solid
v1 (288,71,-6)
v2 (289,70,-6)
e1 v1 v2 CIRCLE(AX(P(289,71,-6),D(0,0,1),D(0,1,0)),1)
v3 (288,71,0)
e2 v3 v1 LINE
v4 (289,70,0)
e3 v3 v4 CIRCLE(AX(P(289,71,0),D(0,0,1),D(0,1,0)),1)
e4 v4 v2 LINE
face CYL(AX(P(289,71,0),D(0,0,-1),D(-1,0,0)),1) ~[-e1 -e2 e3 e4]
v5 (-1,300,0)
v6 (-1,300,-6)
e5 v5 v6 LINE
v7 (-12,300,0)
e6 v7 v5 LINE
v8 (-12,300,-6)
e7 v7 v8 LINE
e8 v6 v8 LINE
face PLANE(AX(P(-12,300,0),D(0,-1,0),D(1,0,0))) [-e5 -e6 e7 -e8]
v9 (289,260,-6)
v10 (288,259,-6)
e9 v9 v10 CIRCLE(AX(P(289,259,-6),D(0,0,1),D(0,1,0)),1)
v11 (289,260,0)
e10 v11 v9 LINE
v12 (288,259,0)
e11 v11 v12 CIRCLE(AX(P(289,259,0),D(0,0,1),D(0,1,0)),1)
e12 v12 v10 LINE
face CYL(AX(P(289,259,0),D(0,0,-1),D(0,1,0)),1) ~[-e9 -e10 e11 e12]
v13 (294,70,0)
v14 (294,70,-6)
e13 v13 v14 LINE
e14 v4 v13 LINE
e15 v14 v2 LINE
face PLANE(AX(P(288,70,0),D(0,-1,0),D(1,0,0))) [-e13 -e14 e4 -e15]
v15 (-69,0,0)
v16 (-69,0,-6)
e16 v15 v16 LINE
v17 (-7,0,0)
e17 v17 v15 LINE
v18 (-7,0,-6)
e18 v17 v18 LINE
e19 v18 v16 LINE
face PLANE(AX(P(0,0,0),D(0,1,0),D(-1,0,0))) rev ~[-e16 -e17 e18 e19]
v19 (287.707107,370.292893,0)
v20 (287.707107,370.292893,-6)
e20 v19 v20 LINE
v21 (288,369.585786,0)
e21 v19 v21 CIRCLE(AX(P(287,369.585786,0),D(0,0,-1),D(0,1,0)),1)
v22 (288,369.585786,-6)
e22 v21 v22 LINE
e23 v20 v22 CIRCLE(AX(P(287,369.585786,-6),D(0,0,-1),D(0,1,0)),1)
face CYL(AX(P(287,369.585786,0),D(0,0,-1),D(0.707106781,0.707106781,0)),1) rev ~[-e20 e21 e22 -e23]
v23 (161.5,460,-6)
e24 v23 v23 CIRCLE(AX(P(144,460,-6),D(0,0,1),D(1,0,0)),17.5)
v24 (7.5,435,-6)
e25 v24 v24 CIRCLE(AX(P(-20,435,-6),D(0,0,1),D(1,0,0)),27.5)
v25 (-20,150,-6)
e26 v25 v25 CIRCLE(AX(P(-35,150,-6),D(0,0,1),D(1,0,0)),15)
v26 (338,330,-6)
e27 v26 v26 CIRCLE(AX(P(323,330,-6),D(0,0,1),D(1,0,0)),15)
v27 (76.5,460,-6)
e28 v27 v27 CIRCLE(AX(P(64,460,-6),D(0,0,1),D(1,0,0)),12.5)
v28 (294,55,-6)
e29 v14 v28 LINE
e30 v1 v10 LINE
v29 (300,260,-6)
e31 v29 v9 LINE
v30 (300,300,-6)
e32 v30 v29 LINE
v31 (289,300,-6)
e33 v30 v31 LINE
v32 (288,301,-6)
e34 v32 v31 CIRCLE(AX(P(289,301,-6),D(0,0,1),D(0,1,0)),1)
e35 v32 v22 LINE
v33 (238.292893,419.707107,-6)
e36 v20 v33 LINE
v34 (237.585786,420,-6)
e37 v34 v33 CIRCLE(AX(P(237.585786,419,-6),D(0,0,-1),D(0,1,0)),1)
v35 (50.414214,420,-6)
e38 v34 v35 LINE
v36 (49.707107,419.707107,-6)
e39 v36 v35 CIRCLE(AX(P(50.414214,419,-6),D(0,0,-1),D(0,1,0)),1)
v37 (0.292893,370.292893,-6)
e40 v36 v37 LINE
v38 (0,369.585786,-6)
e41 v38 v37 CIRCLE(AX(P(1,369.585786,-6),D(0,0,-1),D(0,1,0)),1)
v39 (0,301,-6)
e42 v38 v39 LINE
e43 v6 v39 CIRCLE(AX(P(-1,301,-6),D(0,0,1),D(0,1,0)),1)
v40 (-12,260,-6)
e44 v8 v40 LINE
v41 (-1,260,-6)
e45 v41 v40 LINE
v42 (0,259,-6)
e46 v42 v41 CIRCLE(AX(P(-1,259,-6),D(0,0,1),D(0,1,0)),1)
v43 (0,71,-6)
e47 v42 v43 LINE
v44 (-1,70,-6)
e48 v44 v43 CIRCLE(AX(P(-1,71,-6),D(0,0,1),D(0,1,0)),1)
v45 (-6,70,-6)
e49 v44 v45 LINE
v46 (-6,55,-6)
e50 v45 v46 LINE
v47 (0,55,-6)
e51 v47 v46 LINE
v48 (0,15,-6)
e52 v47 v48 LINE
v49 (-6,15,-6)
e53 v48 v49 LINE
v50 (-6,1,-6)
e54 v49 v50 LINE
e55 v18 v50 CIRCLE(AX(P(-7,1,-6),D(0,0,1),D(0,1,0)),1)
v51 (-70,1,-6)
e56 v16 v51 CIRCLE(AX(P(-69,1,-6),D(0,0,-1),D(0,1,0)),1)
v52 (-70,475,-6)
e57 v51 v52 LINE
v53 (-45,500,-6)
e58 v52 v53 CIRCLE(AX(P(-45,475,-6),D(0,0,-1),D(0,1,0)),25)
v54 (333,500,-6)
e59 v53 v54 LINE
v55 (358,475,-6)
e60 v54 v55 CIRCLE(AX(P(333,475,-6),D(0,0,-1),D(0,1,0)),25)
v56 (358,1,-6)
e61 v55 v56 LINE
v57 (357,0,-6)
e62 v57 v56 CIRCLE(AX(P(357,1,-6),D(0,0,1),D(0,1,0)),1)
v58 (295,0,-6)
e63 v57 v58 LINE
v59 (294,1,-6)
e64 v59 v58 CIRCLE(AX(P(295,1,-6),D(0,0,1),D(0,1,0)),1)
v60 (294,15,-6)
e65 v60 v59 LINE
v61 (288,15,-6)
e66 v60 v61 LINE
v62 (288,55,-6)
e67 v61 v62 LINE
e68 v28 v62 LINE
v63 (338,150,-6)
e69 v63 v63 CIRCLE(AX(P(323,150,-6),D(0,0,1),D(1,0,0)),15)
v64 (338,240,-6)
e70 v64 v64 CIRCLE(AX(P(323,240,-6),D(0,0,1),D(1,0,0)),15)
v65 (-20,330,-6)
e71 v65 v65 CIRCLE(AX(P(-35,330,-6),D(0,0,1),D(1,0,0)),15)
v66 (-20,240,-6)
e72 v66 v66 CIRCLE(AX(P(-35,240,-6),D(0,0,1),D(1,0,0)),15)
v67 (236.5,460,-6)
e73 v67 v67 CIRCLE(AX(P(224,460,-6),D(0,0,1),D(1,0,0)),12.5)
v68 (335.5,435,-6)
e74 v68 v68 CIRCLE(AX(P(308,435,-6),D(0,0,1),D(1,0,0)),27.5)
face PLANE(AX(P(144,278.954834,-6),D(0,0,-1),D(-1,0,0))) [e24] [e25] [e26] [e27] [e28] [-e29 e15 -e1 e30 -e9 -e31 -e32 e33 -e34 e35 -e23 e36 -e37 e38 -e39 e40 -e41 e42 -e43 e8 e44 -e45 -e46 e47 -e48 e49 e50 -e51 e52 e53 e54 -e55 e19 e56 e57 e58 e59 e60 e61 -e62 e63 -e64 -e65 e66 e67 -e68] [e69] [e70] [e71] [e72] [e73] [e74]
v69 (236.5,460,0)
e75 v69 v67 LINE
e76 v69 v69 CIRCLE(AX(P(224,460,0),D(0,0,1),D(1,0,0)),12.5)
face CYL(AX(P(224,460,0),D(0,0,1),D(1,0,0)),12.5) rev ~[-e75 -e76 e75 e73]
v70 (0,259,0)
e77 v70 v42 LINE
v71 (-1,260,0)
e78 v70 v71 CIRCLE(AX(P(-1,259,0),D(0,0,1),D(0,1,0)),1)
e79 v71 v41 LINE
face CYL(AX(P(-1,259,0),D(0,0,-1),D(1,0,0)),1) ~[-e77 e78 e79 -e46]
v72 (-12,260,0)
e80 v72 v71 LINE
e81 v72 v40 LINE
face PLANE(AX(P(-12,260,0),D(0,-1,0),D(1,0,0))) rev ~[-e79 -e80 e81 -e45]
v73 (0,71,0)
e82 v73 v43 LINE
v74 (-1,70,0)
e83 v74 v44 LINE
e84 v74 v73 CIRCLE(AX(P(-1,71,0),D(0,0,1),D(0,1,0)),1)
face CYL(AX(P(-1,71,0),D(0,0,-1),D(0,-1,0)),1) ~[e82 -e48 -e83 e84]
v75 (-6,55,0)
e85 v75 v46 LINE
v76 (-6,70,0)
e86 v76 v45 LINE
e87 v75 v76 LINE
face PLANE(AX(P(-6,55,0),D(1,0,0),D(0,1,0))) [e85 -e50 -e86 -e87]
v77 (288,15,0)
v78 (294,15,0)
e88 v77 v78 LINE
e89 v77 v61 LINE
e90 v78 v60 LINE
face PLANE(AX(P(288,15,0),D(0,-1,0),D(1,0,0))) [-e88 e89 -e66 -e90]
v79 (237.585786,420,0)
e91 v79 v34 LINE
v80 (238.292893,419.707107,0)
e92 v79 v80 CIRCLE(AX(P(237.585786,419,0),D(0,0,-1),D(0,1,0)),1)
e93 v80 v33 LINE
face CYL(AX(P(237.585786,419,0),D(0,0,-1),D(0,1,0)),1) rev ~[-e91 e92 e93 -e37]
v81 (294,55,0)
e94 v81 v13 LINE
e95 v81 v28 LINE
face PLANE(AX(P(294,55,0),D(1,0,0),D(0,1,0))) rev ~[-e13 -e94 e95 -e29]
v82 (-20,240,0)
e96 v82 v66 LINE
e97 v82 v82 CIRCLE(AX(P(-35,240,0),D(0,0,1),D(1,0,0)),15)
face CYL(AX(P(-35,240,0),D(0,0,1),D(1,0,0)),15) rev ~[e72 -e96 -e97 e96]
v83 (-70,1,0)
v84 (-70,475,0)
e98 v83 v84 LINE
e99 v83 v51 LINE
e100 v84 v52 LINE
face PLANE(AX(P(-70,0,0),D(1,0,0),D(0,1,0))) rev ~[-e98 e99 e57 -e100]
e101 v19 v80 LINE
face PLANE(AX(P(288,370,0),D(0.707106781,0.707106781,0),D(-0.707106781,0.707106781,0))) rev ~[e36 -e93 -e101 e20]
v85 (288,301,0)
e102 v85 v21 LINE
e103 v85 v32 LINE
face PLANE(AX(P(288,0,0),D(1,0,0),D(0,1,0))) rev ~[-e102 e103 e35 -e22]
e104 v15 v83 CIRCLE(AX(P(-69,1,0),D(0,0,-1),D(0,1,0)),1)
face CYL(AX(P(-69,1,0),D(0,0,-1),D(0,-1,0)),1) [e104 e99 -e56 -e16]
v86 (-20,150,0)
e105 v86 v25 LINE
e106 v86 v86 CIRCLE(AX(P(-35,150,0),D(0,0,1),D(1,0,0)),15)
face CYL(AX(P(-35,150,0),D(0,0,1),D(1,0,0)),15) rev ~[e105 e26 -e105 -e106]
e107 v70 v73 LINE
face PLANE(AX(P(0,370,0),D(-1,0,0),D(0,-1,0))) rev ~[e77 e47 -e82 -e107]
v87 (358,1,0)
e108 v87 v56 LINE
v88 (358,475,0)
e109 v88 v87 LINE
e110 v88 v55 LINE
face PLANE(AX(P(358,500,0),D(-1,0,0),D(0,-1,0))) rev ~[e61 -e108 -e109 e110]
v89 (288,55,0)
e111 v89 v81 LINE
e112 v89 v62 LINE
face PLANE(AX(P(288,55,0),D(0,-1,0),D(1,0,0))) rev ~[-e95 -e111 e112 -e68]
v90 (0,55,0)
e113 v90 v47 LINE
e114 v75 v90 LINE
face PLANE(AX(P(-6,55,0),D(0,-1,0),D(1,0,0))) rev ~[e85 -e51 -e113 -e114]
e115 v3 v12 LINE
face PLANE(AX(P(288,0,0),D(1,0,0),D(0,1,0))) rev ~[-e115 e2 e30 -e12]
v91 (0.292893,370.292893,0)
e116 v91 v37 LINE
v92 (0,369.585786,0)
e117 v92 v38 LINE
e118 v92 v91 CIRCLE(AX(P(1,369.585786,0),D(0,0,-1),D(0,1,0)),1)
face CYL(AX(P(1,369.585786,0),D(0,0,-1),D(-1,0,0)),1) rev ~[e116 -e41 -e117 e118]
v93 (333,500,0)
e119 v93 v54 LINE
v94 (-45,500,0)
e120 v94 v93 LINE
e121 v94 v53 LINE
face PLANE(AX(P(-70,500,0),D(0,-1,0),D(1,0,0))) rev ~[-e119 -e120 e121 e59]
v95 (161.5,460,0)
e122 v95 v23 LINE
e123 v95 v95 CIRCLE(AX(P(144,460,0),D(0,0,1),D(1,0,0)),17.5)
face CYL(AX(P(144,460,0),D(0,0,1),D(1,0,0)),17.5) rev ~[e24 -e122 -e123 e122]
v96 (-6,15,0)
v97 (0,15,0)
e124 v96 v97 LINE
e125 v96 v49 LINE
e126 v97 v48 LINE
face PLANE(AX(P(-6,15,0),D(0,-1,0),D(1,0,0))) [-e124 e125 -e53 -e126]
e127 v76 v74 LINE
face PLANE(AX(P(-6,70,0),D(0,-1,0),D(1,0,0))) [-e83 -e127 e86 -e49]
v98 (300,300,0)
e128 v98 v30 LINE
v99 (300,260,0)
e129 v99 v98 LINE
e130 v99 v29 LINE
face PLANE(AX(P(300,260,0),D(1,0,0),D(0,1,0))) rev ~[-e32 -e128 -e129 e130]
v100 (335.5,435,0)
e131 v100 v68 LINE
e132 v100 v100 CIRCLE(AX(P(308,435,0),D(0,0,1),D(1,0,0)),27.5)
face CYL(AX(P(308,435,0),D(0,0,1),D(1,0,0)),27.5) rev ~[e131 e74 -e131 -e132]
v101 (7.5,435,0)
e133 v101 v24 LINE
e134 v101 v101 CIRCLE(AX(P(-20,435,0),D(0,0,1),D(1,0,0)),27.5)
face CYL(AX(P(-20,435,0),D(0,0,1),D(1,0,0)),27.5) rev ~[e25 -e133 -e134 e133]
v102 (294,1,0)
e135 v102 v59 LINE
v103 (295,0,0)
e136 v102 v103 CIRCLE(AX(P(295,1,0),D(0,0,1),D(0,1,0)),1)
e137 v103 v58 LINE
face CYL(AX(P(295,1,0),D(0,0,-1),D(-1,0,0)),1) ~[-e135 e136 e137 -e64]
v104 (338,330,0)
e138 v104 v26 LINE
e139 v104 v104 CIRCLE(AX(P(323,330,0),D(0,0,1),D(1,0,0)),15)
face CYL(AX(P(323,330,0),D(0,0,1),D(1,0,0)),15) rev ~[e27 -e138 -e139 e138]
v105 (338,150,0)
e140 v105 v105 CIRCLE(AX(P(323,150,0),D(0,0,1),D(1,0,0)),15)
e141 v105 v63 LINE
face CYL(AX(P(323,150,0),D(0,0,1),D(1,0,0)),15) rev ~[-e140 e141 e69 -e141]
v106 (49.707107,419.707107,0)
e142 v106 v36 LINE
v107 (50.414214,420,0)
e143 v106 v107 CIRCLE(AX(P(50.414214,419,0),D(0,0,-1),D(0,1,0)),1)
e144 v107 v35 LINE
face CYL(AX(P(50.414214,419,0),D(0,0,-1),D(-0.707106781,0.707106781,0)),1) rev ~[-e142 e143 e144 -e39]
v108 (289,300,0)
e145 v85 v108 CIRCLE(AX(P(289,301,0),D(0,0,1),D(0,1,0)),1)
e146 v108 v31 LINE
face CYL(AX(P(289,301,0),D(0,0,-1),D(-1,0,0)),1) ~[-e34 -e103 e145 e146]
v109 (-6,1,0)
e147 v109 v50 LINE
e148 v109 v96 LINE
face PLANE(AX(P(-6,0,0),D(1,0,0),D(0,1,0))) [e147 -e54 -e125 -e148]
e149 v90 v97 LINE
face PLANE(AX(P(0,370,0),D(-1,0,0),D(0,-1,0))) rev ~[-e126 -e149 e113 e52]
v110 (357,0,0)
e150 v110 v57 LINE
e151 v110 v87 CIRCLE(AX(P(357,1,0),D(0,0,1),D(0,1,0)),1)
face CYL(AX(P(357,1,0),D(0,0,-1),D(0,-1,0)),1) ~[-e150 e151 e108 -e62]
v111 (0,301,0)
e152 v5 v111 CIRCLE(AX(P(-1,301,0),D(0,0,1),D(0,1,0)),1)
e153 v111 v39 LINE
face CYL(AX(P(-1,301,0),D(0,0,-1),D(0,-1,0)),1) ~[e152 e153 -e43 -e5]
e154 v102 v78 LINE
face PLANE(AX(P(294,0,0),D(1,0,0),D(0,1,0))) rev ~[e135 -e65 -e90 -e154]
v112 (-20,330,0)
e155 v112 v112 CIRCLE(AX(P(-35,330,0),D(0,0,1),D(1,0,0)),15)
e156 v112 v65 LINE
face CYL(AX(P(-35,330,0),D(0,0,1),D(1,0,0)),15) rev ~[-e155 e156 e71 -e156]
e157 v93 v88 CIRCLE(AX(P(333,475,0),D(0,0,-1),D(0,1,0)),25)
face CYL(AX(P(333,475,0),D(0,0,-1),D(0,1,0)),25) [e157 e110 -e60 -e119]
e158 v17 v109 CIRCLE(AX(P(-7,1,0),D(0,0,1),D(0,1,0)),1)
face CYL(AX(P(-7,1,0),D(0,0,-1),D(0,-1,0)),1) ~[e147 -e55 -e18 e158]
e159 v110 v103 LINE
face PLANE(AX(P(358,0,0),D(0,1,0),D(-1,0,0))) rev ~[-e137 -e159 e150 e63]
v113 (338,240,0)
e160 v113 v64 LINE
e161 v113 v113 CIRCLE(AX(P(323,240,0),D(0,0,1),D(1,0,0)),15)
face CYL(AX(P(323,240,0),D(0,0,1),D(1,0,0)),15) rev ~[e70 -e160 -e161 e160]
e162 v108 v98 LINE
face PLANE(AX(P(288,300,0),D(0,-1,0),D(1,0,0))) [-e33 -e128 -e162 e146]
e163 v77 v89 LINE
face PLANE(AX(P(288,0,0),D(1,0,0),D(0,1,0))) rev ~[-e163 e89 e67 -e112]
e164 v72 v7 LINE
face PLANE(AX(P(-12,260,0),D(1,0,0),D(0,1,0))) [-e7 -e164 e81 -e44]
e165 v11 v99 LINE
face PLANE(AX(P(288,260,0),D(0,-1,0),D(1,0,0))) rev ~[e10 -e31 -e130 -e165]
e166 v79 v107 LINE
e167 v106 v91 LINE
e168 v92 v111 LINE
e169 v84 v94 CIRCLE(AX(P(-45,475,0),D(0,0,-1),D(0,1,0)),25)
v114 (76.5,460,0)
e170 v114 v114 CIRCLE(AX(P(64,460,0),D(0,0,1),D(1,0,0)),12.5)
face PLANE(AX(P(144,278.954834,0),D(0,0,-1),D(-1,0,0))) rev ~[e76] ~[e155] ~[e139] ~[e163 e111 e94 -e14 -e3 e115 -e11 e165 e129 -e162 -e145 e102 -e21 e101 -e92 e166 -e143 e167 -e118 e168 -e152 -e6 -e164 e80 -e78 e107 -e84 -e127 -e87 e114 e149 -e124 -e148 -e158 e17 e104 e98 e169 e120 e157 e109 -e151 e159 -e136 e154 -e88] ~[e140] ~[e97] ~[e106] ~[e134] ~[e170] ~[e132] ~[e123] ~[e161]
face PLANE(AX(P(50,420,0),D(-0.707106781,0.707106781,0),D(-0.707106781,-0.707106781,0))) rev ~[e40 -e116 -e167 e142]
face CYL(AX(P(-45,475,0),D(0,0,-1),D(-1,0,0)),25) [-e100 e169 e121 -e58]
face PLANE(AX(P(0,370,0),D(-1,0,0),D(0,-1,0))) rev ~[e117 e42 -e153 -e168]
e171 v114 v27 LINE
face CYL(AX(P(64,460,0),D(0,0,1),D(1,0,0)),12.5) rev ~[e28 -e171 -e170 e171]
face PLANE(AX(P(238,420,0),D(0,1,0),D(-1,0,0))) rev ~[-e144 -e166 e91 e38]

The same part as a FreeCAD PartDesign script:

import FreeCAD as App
import Part
import Sketcher


def edges_at(feature, points):
    """Names of the edges that pass closest to the given points."""
    edges = feature.Shape.Edges
    near = lambda p: min(range(len(edges)), key=lambda i: edges[i].distToShape(Part.Vertex(*p))[0])
    return sorted({f"Edge{near(p) + 1}" for p in points})


def add_polygon(sketch, points):
    """Adds a closed chain of lines whose ends are joined by coincident constraints."""
    first, n = sketch.GeometryCount, len(points)
    for a, b in zip(points, points[1:] + points[:1]):
        sketch.addGeometry(Part.LineSegment(App.Vector(*a, 0), App.Vector(*b, 0)), False)
    for i in range(n):
        sketch.addConstraint(Sketcher.Constraint("Coincident", first + i, 2, first + (i + 1) % n, 1))

doc = App.newDocument("Part")
body = doc.addObject("PartDesign::Body", "Body")

sketch1 = body.newObject("Sketcher::SketchObject", "Sketch")
sketch1.AttachmentSupport = (doc.getObject("XY_Plane"), [""])
sketch1.MapMode = "FlatFace"
add_polygon(sketch1, [(-70, 0), (0, 0), (0, 370), (50, 420), (238, 420), (288, 370), (288, 0), (358, 0), (358, 500), (-70, 500)])
sketch1.addConstraint([
    Sketcher.Constraint("Horizontal", 0),
    Sketcher.Constraint("Vertical", 1),
    Sketcher.Constraint("Horizontal", 3),
    Sketcher.Constraint("Vertical", 5),
    Sketcher.Constraint("Horizontal", 6),
    Sketcher.Constraint("Vertical", 7),
    Sketcher.Constraint("Horizontal", 8),
    Sketcher.Constraint("Vertical", 9),
    Sketcher.Constraint("Coincident", 0, 2, -1, 1),
    Sketcher.Constraint("PointOnObject", 5, 2, -1),
    Sketcher.Constraint("Perpendicular", 2, 4),
    Sketcher.Constraint("Horizontal", 1, 2, 4, 2),
    Sketcher.Constraint("Equal", 0, 6),
    Sketcher.Constraint("Equal", 2, 4),
    Sketcher.Constraint("DistanceX", 0, 1, 0, 2, 70.0),
    Sketcher.Constraint("DistanceX", 3, 1, 3, 2, 188.0),
    Sketcher.Constraint("DistanceX", 8, 2, 8, 1, 428.0),
    Sketcher.Constraint("DistanceY", 1, 1, 1, 2, 370.0),
    Sketcher.Constraint("DistanceY", 7, 1, 7, 2, 500.0),
])
pad1 = body.newObject("PartDesign::Pad", "Pad")
pad1.Profile = sketch1
pad1.Length = 6
pad1.Reversed = True

sketch2 = body.newObject("Sketcher::SketchObject", "Sketch001")
sketch2.AttachmentSupport = (doc.getObject("XY_Plane"), [""])
sketch2.MapMode = "FlatFace"
add_polygon(sketch2, [(-6, 70), (-6, 55), (0, 55), (0, 70)])
add_polygon(sketch2, [(-6, 15), (-6, 0), (0, 0), (0, 15)])
add_polygon(sketch2, [(288, 15), (288, 0), (294, 0), (294, 15)])
add_polygon(sketch2, [(288, 70), (288, 55), (294, 55), (294, 70)])
add_polygon(sketch2, [(-12, 300), (-12, 260), (0, 260), (0, 300)])
add_polygon(sketch2, [(288, 300), (288, 260), (300, 260), (300, 300)])
sketch2.addConstraint([
    Sketcher.Constraint("Vertical", 0),
    Sketcher.Constraint("Horizontal", 1),
    Sketcher.Constraint("Vertical", 2),
    Sketcher.Constraint("Horizontal", 3),
    Sketcher.Constraint("Vertical", 4),
    Sketcher.Constraint("Horizontal", 5),
    Sketcher.Constraint("Vertical", 6),
    Sketcher.Constraint("Horizontal", 7),
    Sketcher.Constraint("Vertical", 8),
    Sketcher.Constraint("Horizontal", 9),
    Sketcher.Constraint("Vertical", 10),
    Sketcher.Constraint("Horizontal", 11),
    Sketcher.Constraint("Vertical", 12),
    Sketcher.Constraint("Horizontal", 13),
    Sketcher.Constraint("Vertical", 14),
    Sketcher.Constraint("Horizontal", 15),
    Sketcher.Constraint("Vertical", 16),
    Sketcher.Constraint("Horizontal", 17),
    Sketcher.Constraint("Vertical", 18),
    Sketcher.Constraint("Horizontal", 19),
    Sketcher.Constraint("Vertical", 20),
    Sketcher.Constraint("Horizontal", 21),
    Sketcher.Constraint("Vertical", 22),
    Sketcher.Constraint("Horizontal", 23),
    Sketcher.Constraint("Coincident", 5, 2, -1, 1),
    Sketcher.Constraint("PointOnObject", 1, 2, -2),
    Sketcher.Constraint("PointOnObject", 8, 2, -1),
    Sketcher.Constraint("PointOnObject", 17, 2, -2),
    Sketcher.Constraint("Horizontal", 7, 2, 10, 2),
    Sketcher.Constraint("Horizontal", 1, 2, 12, 2),
    Sketcher.Constraint("Horizontal", 3, 2, 14, 2),
    Sketcher.Constraint("Horizontal", 17, 2, 20, 2),
    Sketcher.Constraint("Horizontal", 19, 2, 22, 2),
    Sketcher.Constraint("Vertical", 3, 2, 4, 2),
    Sketcher.Constraint("Vertical", 11, 2, 12, 2),
    Sketcher.Constraint("Vertical", 10, 2, 13, 2),
    Sketcher.Constraint("Vertical", 15, 2, 20, 2),
    Sketcher.Constraint("Equal", 7, 9),
    Sketcher.Constraint("Equal", 19, 21),
    Sketcher.Constraint("Equal", 2, 4),
    Sketcher.Constraint("DistanceX", 1, 1, 1, 2, 6.0),
    Sketcher.Constraint("DistanceX", 17, 1, 17, 2, 12.0),
    Sketcher.Constraint("DistanceY", 0, 2, 0, 1, 15.0),
    Sketcher.Constraint("DistanceY", 16, 2, 16, 1, 40.0),
    Sketcher.Constraint("DistanceY", -1, 1, 0, 2, 55.0),
    Sketcher.Constraint("DistanceX", -1, 1, 8, 2, 288.0),
    Sketcher.Constraint("DistanceY", -1, 1, 16, 2, 260.0),
])
pocket1 = body.newObject("PartDesign::Pocket", "Pocket")
pocket1.Profile = sketch2
pocket1.Type = "ThroughAll"
doc.recompute()

fillet = body.newObject("PartDesign::Fillet", "Fillet")
fillet.Base = (pocket1, edges_at(pocket1, [
    (288, 300, -3),
    (288, 260, -3),
    (-70, 0, -3),
    (358, 0, -3),
    (288, 370, -3),
    (238, 420, -3),
    (50, 420, -3),
    (0, 370, -3),
    (0, 70, -3),
    (-6, 0, -3),
    (288, 70, -3),
    (294, 0, -3),
    (0, 260, -3),
    (0, 300, -3),
]))
fillet.Radius = 1

sketch3 = body.newObject("Sketcher::SketchObject", "Sketch002")
sketch3.AttachmentSupport = (doc.getObject("XY_Plane"), [""])
sketch3.MapMode = "FlatFace"
sketch3.addGeometry([
    Part.Circle(App.Vector(64, 460, 0), App.Vector(0, 0, 1), 12),
    Part.Circle(App.Vector(144, 460, 0), App.Vector(0, 0, 1), 18),
    Part.Circle(App.Vector(224, 460, 0), App.Vector(0, 0, 1), 12),
    Part.Circle(App.Vector(-20, 435, 0), App.Vector(0, 0, 1), 28),
    Part.Circle(App.Vector(308, 435, 0), App.Vector(0, 0, 1), 28),
    Part.Circle(App.Vector(-35, 330, 0), App.Vector(0, 0, 1), 15),
    Part.Circle(App.Vector(-35, 240, 0), App.Vector(0, 0, 1), 15),
    Part.Circle(App.Vector(-35, 150, 0), App.Vector(0, 0, 1), 15),
    Part.Circle(App.Vector(323, 330, 0), App.Vector(0, 0, 1), 15),
    Part.Circle(App.Vector(323, 240, 0), App.Vector(0, 0, 1), 15),
    Part.Circle(App.Vector(323, 150, 0), App.Vector(0, 0, 1), 15),
], False)
sketch3.addConstraint([
    Sketcher.Constraint("Equal", 0, 2),
    Sketcher.Constraint("Equal", 3, 4),
    Sketcher.Constraint("Equal", 5, 6),
    Sketcher.Constraint("Equal", 6, 7),
    Sketcher.Constraint("Equal", 7, 8),
    Sketcher.Constraint("Equal", 8, 9),
    Sketcher.Constraint("Equal", 9, 10),
    Sketcher.Constraint("Horizontal", 0, 3, 1, 3),
    Sketcher.Constraint("Horizontal", 1, 3, 2, 3),
    Sketcher.Constraint("Horizontal", 3, 3, 4, 3),
    Sketcher.Constraint("Horizontal", 5, 3, 8, 3),
    Sketcher.Constraint("Horizontal", 6, 3, 9, 3),
    Sketcher.Constraint("Horizontal", 7, 3, 10, 3),
    Sketcher.Constraint("Vertical", 5, 3, 6, 3),
    Sketcher.Constraint("Vertical", 6, 3, 7, 3),
    Sketcher.Constraint("Vertical", 8, 3, 9, 3),
    Sketcher.Constraint("Vertical", 9, 3, 10, 3),
    Sketcher.Constraint("Diameter", 0, 25.0),
    Sketcher.Constraint("Diameter", 1, 35.0),
    Sketcher.Constraint("Diameter", 3, 55.0),
    Sketcher.Constraint("Diameter", 5, 30.0),
    Sketcher.Constraint("DistanceX", -1, 1, 0, 3, 64.0),
    Sketcher.Constraint("DistanceY", -1, 1, 0, 3, 460.0),
    Sketcher.Constraint("DistanceX", -1, 1, 1, 3, 144.0),
    Sketcher.Constraint("DistanceX", -1, 1, 2, 3, 224.0),
    Sketcher.Constraint("DistanceX", 3, 3, -1, 1, 20.0),
    Sketcher.Constraint("DistanceY", -1, 1, 3, 3, 435.0),
    Sketcher.Constraint("DistanceX", -1, 1, 4, 3, 308.0),
    Sketcher.Constraint("DistanceX", 5, 3, -1, 1, 35.0),
    Sketcher.Constraint("DistanceY", -1, 1, 5, 3, 330.0),
    Sketcher.Constraint("DistanceY", -1, 1, 6, 3, 240.0),
    Sketcher.Constraint("DistanceY", -1, 1, 7, 3, 150.0),
    Sketcher.Constraint("DistanceX", -1, 1, 8, 3, 323.0),
])
pocket2 = body.newObject("PartDesign::Pocket", "Pocket001")
pocket2.Profile = sketch3
pocket2.Type = "ThroughAll"
doc.recompute()

fillet2 = body.newObject("PartDesign::Fillet", "Fillet001")
fillet2.Base = (pocket2, edges_at(pocket2, [(-70, 500, -3), (358, 500, -3)]))
fillet2.Radius = 25

doc.recompute()
